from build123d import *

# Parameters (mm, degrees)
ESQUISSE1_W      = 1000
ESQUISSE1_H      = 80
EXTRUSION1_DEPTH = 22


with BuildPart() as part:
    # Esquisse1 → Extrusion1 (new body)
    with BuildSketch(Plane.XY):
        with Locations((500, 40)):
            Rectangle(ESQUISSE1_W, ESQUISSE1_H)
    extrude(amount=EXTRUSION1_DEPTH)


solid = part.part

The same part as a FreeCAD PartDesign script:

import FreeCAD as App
import Part
import Sketcher


def add_polygon(sketch, points):
    """Adds a closed chain of lines whose ends are joined by coincident constraints."""
    first, n = sketch.GeometryCount, len(points)
    for a, b in zip(points, points[1:] + points[:1]):
        sketch.addGeometry(Part.LineSegment(App.Vector(*a, 0), App.Vector(*b, 0)), False)
    for i in range(n):
        sketch.addConstraint(Sketcher.Constraint("Coincident", first + i, 2, first + (i + 1) % n, 1))

doc = App.newDocument("Part")
params = doc.addObject("Spreadsheet::Sheet", "Params")
for row, (alias, value) in enumerate([
    ("sketch1_width", "1000 mm"),
    ("sketch1_height", "80 mm"),
    ("pad1_length", "22 mm"),
], start=1):
    params.set(f"A{row}", alias)
    params.set(f"B{row}", "=" + value)
    params.setAlias(f"B{row}", alias)

body = doc.addObject("PartDesign::Body", "Body")

sketch1 = doc.addObject("Sketcher::SketchObject", "Sketch")
body.addObject(sketch1)
sketch1.AttachmentSupport = (doc.XY_Plane, [""])
sketch1.MapMode = "FlatFace"
add_polygon(sketch1, [(0, 80), (0, 0), (1000, 0), (1000, 80)])
sketch1.addConstraint([
    Sketcher.Constraint("Vertical", 0),
    Sketcher.Constraint("Horizontal", 1),
    Sketcher.Constraint("Vertical", 2),
    Sketcher.Constraint("Horizontal", 3),
    Sketcher.Constraint("Coincident", 0, 2, -1, 1),
    Sketcher.Constraint("DistanceX", 1, 1, 1, 2, 1000.0),
    Sketcher.Constraint("DistanceY", 0, 2, 0, 1, 80.0),
])
sketch1.setExpression("Constraints[9]", "Params.sketch1_width")
sketch1.setExpression("Constraints[10]", "Params.sketch1_height")
pad1 = doc.addObject("PartDesign::Pad", "Pad")
body.addObject(pad1)
pad1.Profile = sketch1
pad1.setExpression("Length", "Params.pad1_length")

doc.recompute()
